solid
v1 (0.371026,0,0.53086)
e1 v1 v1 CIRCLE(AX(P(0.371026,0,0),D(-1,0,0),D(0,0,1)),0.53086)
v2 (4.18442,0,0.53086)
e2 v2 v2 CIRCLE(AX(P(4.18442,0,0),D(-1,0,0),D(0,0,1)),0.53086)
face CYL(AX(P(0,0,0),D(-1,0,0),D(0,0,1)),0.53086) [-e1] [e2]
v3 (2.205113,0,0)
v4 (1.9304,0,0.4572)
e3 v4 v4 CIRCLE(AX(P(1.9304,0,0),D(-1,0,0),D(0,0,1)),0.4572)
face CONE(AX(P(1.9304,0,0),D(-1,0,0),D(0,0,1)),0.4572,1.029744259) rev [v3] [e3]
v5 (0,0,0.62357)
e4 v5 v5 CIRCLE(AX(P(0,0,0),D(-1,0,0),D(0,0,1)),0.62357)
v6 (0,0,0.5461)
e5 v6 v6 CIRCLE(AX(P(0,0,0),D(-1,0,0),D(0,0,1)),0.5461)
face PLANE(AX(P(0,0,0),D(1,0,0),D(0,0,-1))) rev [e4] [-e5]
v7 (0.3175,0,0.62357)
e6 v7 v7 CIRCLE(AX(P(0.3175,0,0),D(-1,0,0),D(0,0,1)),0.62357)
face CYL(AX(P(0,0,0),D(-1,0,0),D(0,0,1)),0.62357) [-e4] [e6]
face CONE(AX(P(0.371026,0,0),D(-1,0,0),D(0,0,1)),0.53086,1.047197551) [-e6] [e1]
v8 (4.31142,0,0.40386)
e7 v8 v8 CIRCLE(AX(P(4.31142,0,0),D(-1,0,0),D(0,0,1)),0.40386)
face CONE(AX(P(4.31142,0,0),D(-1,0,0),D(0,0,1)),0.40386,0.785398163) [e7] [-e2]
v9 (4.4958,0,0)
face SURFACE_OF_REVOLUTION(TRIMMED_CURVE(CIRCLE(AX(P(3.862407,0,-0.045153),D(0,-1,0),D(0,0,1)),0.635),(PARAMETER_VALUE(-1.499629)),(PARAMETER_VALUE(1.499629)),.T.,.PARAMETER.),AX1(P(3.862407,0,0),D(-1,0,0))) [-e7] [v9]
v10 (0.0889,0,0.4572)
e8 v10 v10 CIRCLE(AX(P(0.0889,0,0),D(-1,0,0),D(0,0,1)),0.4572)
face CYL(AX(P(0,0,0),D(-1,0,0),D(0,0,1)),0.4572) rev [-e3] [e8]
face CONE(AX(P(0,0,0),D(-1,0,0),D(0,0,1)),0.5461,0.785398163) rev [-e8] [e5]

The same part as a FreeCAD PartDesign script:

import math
import FreeCAD as App
import Part
import Sketcher

V = App.Vector
Q = App.Units.Quantity

doc = App.newDocument("Part")
params = doc.addObject("Spreadsheet::Sheet", "Params")
for row, (alias, value) in enumerate([
    ("sketch1_radius", "0.025 in"),
    ("sketch1_width", "0.177 in"),
    ("revolution_angle", "360 deg"),
    ("sketch2_diameter", "0.036 in"),
    ("hole_diameter", "0.036 in"),
    ("hole_depth", "0.076 in"),
    ("hole_csink_diameter", "0.043 in"),
], start=1):
    params.set(f"A{row}", alias)
    params.set(f"B{row}", "=" + value)
    params.setAlias(f"B{row}", alias)

body = doc.addObject("PartDesign::Body", "Body")

sketch1 = body.newObject("Sketcher::SketchObject", "Sketch")
sketch1.AttachmentSupport = (doc.getObject("XY_Plane"), [""])
sketch1.MapMode = "FlatFace"
sketch1.addGeometry(Part.LineSegment(V(0, 0.62357, 0), V(0, 0, 0)), False)
sketch1.addGeometry(Part.LineSegment(V(0, 0, 0), V(4.4958, 0, 0)), False)
sketch1.addGeometry(Part.ArcOfCircle(Part.Circle(V(3.862407, -0.045153, 0), V(0, 0, 1), 0.635), math.radians(4.07756), math.radians(45)), False)
sketch1.addGeometry(Part.LineSegment(V(4.31142, 0.40386, 0), V(4.18442, 0.53086, 0)), False)
sketch1.addGeometry(Part.LineSegment(V(4.18442, 0.53086, 0), V(0.371026, 0.53086, 0)), False)
sketch1.addGeometry(Part.LineSegment(V(0.371026, 0.53086, 0), V(0.3175, 0.62357, 0)), False)
sketch1.addGeometry(Part.LineSegment(V(0.3175, 0.62357, 0), V(0, 0.62357, 0)), False)
sketch1.addConstraint(Sketcher.Constraint("Coincident", 0, 2, 1, 1))
sketch1.addConstraint(Sketcher.Constraint("Coincident", 1, 2, 2, 1))
sketch1.addConstraint(Sketcher.Constraint("Tangent", 2, 2, 3, 1))
sketch1.addConstraint(Sketcher.Constraint("Coincident", 3, 2, 4, 1))
sketch1.addConstraint(Sketcher.Constraint("Coincident", 4, 2, 5, 1))
sketch1.addConstraint(Sketcher.Constraint("Coincident", 5, 2, 6, 1))
sketch1.addConstraint(Sketcher.Constraint("Coincident", 6, 2, 0, 1))
sketch1.addConstraint(Sketcher.Constraint("Vertical", 0))
sketch1.addConstraint(Sketcher.Constraint("Horizontal", 1))
sketch1.addConstraint(Sketcher.Constraint("Horizontal", 4))
sketch1.addConstraint(Sketcher.Constraint("Horizontal", 6))
sketch1.addConstraint(Sketcher.Constraint("Coincident", 0, 2, -1, 1))
sketch1.addConstraint(Sketcher.Constraint("Angle", 3, Q("135 deg")))
sketch1.addConstraint(Sketcher.Constraint("Angle", 5, Q("120 deg")))
sketch1.addConstraint(Sketcher.Constraint("Radius", 2, Q("0.025 in")))
sketch1.addConstraint(Sketcher.Constraint("DistanceX", 1, 1, 1, 2, Q("0.177 in")))
sketch1.addConstraint(Sketcher.Constraint("DistanceX", 6, 2, 6, 1, Q("0.0125 in")))
sketch1.addConstraint(Sketcher.Constraint("DistanceX", 3, 2, 2, 2, Q("0.005 in")))
sketch1.addConstraint(Sketcher.Constraint("DistanceY", -1, 1, 2, 2, Q("0.0159 in")))
sketch1.addConstraint(Sketcher.Constraint("DistanceY", 0, 2, 0, 1, 0.62357))
sketch1.setExpression("Constraints[14]", "Params.sketch1_radius")
sketch1.setExpression("Constraints[15]", "Params.sketch1_width")
revolution = body.newObject("PartDesign::Revolution", "Revolution")
revolution.Profile = sketch1
revolution.ReferenceAxis = (sketch1, ["H_Axis"])
revolution.setExpression("Angle", "Params.revolution_angle")

sketch2 = body.newObject("Sketcher::SketchObject", "Sketch001")
sketch2.AttachmentSupport = (doc.getObject("YZ_Plane"), [""])
sketch2.MapMode = "FlatFace"
sketch2.addGeometry(Part.Circle(V(0, 0, 0), V(0, 0, 1), 0.4572), False)
sketch2.addConstraint(Sketcher.Constraint("Coincident", 0, 3, -1, 1))
sketch2.addConstraint(Sketcher.Constraint("Diameter", 0, Q("0.036 in")))
sketch2.setExpression("Constraints[1]", "Params.sketch2_diameter")
doc.recompute()
hole = body.newObject("PartDesign::Hole", "Hole")
hole.Profile = sketch2
hole.ThreadType = "None"
hole.setExpression("Diameter", "Params.hole_diameter")
hole.DepthType = "Dimension"
hole.setExpression("Depth", "Params.hole_depth")
hole.DrillPoint = "Angled"
hole.DrillPointAngle = 118
hole.HoleCutType = "Countersink"
hole.setExpression("HoleCutDiameter", "Params.hole_csink_diameter")
hole.HoleCutCountersinkAngle = 90
hole.Reversed = True

doc.recompute()
